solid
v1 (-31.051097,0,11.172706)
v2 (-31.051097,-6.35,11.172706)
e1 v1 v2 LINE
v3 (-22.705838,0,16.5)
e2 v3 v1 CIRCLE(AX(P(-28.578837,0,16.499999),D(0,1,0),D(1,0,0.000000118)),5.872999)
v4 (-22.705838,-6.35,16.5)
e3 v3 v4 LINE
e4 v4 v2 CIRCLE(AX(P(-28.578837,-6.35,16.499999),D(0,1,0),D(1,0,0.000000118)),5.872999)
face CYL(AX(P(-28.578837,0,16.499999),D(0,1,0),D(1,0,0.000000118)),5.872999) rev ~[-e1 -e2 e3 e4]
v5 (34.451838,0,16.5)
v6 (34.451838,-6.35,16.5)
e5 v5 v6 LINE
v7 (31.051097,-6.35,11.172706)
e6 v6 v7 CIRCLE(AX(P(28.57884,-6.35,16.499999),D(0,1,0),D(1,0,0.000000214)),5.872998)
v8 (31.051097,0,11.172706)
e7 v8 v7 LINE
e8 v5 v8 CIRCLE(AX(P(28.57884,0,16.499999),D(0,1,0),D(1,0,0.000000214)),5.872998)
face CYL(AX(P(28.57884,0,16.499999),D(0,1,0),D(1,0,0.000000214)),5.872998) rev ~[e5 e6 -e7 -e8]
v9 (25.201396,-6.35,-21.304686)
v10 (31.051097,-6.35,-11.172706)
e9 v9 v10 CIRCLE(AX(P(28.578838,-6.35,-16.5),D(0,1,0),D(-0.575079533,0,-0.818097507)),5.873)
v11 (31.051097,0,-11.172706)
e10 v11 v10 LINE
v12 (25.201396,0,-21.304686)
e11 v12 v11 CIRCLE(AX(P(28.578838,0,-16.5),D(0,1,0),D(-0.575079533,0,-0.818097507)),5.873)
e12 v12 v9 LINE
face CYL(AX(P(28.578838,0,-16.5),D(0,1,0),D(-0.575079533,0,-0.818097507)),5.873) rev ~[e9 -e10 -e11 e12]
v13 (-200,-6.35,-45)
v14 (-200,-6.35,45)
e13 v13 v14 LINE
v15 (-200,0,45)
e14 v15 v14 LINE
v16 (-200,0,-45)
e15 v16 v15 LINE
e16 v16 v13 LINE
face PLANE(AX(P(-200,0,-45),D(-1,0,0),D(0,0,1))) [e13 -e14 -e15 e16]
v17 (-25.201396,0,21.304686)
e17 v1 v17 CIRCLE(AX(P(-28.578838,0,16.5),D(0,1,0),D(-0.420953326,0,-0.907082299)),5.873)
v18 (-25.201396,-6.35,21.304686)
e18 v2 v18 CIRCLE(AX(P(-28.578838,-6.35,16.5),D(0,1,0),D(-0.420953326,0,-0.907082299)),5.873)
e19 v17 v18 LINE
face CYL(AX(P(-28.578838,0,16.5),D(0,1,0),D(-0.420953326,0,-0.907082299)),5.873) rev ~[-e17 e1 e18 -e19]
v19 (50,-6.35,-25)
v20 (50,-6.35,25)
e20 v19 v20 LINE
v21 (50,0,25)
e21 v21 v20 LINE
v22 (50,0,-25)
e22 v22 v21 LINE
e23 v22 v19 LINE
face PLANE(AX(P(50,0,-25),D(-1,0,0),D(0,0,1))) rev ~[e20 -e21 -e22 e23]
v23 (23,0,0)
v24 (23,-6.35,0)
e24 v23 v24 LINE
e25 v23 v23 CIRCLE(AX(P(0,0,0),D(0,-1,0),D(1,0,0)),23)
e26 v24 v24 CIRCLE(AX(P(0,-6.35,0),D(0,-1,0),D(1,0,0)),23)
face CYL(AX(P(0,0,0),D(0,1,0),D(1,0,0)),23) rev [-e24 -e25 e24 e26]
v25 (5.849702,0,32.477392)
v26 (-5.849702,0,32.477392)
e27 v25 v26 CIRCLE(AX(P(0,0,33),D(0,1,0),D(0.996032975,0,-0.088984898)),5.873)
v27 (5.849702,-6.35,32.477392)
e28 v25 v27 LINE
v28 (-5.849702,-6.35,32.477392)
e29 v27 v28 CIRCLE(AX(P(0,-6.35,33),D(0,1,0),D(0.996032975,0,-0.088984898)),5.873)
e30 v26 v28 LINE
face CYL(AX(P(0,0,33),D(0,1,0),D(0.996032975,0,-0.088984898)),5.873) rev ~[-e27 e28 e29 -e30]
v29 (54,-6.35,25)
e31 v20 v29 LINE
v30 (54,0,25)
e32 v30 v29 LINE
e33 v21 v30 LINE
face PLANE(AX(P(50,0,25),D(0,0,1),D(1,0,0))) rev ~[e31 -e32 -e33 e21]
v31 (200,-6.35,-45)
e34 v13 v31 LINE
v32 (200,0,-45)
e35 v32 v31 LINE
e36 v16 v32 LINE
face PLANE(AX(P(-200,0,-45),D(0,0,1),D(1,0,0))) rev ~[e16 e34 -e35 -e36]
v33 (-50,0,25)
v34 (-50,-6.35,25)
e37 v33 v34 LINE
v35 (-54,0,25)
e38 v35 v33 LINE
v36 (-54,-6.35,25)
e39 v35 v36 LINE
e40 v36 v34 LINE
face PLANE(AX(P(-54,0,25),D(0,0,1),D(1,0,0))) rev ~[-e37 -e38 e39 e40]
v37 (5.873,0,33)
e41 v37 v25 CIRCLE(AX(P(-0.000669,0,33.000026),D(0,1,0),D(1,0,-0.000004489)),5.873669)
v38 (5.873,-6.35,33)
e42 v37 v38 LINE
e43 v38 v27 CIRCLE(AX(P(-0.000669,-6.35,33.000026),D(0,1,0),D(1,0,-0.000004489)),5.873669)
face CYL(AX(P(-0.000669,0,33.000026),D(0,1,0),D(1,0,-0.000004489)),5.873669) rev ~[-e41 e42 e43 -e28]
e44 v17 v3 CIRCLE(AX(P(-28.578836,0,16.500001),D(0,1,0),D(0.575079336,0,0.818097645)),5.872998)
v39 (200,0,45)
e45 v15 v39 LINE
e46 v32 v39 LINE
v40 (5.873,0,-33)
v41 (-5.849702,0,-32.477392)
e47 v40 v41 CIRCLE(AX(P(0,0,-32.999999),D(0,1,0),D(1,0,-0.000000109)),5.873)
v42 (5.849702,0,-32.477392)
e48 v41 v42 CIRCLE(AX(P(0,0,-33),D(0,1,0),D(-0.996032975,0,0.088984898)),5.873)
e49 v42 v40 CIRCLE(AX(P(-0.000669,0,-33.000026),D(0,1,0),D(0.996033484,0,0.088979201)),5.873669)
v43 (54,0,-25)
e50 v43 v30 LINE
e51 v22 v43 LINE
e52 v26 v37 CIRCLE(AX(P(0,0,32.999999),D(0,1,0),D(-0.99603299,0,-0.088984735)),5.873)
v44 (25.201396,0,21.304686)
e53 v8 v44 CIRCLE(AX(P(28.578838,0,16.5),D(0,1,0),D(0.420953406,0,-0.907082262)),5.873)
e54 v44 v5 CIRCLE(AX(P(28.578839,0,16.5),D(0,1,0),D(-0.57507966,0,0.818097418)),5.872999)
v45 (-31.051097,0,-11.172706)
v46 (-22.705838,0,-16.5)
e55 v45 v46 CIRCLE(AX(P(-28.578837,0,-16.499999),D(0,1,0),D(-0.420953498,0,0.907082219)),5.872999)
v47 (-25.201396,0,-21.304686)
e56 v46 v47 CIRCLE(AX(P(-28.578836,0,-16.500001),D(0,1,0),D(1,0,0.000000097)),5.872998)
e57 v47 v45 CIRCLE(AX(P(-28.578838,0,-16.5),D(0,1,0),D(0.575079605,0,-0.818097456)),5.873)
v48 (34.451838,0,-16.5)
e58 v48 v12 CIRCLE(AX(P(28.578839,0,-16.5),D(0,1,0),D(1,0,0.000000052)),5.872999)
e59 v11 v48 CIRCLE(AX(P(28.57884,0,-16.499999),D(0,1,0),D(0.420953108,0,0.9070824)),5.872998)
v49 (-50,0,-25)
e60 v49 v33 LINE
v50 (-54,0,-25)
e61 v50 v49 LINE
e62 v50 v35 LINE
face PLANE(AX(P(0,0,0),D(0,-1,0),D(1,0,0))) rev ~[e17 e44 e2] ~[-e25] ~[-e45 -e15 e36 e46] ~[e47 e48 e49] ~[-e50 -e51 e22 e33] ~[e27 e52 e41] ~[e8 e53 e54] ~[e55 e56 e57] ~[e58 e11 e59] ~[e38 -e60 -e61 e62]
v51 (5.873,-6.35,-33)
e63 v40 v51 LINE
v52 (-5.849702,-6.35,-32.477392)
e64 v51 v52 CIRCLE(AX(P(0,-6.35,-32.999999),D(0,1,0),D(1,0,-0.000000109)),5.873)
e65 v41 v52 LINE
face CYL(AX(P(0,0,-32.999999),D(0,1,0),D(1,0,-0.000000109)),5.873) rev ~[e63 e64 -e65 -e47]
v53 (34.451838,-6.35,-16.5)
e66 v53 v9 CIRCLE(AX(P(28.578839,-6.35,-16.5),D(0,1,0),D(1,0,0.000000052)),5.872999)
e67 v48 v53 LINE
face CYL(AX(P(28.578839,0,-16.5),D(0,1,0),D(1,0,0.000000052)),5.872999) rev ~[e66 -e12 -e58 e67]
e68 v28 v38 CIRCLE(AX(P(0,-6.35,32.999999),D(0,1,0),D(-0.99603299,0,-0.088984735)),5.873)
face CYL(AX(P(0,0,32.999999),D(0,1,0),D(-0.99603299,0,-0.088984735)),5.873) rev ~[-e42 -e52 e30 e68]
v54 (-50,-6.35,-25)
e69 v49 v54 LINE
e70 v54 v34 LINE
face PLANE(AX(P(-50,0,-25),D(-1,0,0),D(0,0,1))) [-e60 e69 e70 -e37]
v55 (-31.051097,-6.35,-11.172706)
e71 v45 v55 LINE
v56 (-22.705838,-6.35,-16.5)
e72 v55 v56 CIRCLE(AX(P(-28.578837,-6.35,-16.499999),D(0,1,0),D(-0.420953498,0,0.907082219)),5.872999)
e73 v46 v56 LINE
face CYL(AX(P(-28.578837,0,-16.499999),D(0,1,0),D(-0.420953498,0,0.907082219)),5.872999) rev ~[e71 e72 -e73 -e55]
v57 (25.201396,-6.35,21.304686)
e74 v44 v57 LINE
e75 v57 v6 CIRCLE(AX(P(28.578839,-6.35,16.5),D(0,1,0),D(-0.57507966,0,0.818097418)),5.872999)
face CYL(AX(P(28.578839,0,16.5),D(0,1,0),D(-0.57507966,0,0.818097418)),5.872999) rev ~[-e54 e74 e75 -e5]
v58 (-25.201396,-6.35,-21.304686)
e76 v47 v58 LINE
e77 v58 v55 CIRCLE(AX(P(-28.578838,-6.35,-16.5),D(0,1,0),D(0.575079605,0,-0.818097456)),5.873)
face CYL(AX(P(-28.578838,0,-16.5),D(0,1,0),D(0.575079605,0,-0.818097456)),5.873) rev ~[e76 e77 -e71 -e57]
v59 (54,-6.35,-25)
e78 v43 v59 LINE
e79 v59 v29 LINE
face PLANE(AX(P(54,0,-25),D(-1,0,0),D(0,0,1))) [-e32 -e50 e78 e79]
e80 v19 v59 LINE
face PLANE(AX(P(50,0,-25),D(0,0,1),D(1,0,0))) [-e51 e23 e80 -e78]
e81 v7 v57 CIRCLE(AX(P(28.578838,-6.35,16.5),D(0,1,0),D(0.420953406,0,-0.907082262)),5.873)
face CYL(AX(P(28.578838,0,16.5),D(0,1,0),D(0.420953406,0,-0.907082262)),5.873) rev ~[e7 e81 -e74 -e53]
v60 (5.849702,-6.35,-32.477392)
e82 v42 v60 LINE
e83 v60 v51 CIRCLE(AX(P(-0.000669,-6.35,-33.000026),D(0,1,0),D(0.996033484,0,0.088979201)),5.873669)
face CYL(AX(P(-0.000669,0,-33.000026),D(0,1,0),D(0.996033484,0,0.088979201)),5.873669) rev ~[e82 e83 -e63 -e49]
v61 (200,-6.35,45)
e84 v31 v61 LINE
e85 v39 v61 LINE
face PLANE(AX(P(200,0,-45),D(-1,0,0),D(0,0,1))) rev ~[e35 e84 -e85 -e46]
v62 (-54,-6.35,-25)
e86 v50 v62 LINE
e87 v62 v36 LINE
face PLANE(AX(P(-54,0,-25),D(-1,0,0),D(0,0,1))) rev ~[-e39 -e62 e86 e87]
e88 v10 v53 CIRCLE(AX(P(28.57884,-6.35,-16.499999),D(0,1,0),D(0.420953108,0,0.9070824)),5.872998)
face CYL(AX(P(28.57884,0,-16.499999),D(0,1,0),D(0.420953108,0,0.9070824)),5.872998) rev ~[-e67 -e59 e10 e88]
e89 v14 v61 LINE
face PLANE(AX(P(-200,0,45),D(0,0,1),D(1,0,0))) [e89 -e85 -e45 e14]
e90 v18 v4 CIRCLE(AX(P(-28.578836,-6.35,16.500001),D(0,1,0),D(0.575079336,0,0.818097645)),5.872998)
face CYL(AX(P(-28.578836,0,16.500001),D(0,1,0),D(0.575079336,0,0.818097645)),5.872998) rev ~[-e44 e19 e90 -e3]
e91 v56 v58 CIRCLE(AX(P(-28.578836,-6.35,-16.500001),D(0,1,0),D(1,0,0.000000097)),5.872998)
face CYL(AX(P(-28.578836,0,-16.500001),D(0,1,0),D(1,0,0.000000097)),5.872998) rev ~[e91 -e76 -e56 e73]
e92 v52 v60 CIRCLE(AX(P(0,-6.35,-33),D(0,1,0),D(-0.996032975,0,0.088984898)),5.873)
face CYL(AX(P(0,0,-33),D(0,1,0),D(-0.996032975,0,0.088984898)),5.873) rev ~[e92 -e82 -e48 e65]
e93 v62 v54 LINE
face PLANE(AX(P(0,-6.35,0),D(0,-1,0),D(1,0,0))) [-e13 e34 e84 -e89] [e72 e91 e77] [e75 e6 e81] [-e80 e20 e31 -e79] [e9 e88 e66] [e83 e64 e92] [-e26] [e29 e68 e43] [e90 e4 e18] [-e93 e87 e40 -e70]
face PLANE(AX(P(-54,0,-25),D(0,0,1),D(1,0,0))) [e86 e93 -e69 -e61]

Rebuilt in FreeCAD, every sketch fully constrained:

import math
import FreeCAD as App
import Part
import Sketcher
from FreeCAD import Vector

doc = App.newDocument("Part")
body = doc.addObject("PartDesign::Body", "Body")

# Sketch on XZ plane
sketch1 = body.newObject("Sketcher::SketchObject", "Sketch")
sketch1.AttachmentSupport = (doc.getObject("XZ_Plane"), [""])
sketch1.MapMode = "FlatFace"
sketch1.addGeometry([
    Part.LineSegment(Vector(-200, 45, 0), Vector(-200, -45, 0)),  # 0
    Part.LineSegment(Vector(-200, -45, 0), Vector(200, -45, 0)),  # 1
    Part.LineSegment(Vector(200, -45, 0), Vector(200, 45, 0)),  # 2
    Part.LineSegment(Vector(200, 45, 0), Vector(-200, 45, 0)),  # 3
    Part.ArcOfCircle(Part.Circle(Vector(0, -33, 0), Vector(0, 0, 1), 5.9), math.radians(0), math.radians(5.1)),  # 4
    Part.ArcOfCircle(Part.Circle(Vector(0, -33, 0), Vector(0, 0, 1), 5.9), math.radians(175), math.radians(360)),  # 5
    Part.ArcOfCircle(Part.Circle(Vector(0, -33, 0), Vector(0, 0, 1), 5.9), math.radians(5), math.radians(175)),  # 6
    Part.ArcOfCircle(Part.Circle(Vector(-28.6, -16.5, 0), Vector(0, 0, 1), 5.9), math.radians(115), math.radians(305)),  # 7
    Part.ArcOfCircle(Part.Circle(Vector(-28.6, -16.5, 0), Vector(0, 0, 1), 5.9), math.radians(0), math.radians(115)),  # 8
    Part.ArcOfCircle(Part.Circle(Vector(-28.6, -16.5, 0), Vector(0, 0, 1), 5.9), math.radians(-55), math.radians(0)),  # 9
    Part.ArcOfCircle(Part.Circle(Vector(28.6, -16.5, 0), Vector(0, 0, 1), 5.9), math.radians(0), math.radians(65)),  # 10
    Part.ArcOfCircle(Part.Circle(Vector(28.6, -16.5, 0), Vector(0, 0, 1), 5.9), math.radians(-125), math.radians(0)),  # 11
    Part.ArcOfCircle(Part.Circle(Vector(28.6, -16.5, 0), Vector(0, 0, 1), 5.9), math.radians(65), math.radians(235)),  # 12
    Part.LineSegment(Vector(-50, -25, 0), Vector(-54, -25, 0)),  # 13
    Part.LineSegment(Vector(-54, -25, 0), Vector(-54, 25, 0)),  # 14
    Part.LineSegment(Vector(-54, 25, 0), Vector(-50, 25, 0)),  # 15
    Part.LineSegment(Vector(-50, 25, 0), Vector(-50, -25, 0)),  # 16
    Part.ArcOfCircle(Part.Circle(Vector(-28.6, 16.5, 0), Vector(0, 0, 1), 5.9), math.radians(55), math.radians(245)),  # 17
    Part.ArcOfCircle(Part.Circle(Vector(-28.6, 16.5, 0), Vector(0, 0, 1), 5.9), math.radians(0), math.radians(55)),  # 18
    Part.ArcOfCircle(Part.Circle(Vector(-28.6, 16.5, 0), Vector(0, 0, 1), 5.9), math.radians(-115), math.radians(0)),  # 19
    Part.ArcOfCircle(Part.Circle(Vector(0, 33, 0), Vector(0, 0, 1), 5.9), math.radians(-5.1), math.radians(0)),  # 20
    Part.ArcOfCircle(Part.Circle(Vector(0, 33, 0), Vector(0, 0, 1), 5.9), math.radians(-175), math.radians(-5)),  # 21
    Part.ArcOfCircle(Part.Circle(Vector(0, 33, 0), Vector(0, 0, 1), 5.9), math.radians(0), math.radians(185)),  # 22
    Part.Circle(Vector(0, 0, 0), Vector(0, 0, 1), 23),  # 23
    Part.LineSegment(Vector(54, -25, 0), Vector(50, -25, 0)),  # 24
    Part.LineSegment(Vector(50, -25, 0), Vector(50, 25, 0)),  # 25
    Part.LineSegment(Vector(50, 25, 0), Vector(54, 25, 0)),  # 26
    Part.LineSegment(Vector(54, 25, 0), Vector(54, -25, 0)),  # 27
    Part.ArcOfCircle(Part.Circle(Vector(28.6, 16.5, 0), Vector(0, 0, 1), 5.9), math.radians(-65), math.radians(0)),  # 28
    Part.ArcOfCircle(Part.Circle(Vector(28.6, 16.5, 0), Vector(0, 0, 1), 5.9), math.radians(125), math.radians(295)),  # 29
    Part.ArcOfCircle(Part.Circle(Vector(28.6, 16.5, 0), Vector(0, 0, 1), 5.9), math.radians(0), math.radians(125)),  # 30
], False)
sketch1.addConstraint([
    Sketcher.Constraint("Coincident", 0, 2, 1, 1),
    Sketcher.Constraint("Coincident", 1, 2, 2, 1),
    Sketcher.Constraint("Coincident", 2, 2, 3, 1),
    Sketcher.Constraint("Coincident", 3, 2, 0, 1),
    Sketcher.Constraint("Coincident", 4, 1, 5, 2),
    Sketcher.Constraint("Tangent", 5, 1, 6, 2),
    Sketcher.Constraint("Coincident", 6, 1, 4, 2),
    Sketcher.Constraint("Tangent", 7, 1, 8, 2),
    Sketcher.Constraint("Tangent", 8, 1, 9, 2),
    Sketcher.Constraint("Tangent", 9, 1, 7, 2),
    Sketcher.Constraint("Tangent", 10, 1, 11, 2),
    Sketcher.Constraint("Tangent", 11, 1, 12, 2),
    Sketcher.Constraint("Tangent", 12, 1, 10, 2),
    Sketcher.Constraint("Coincident", 13, 2, 14, 1),
    Sketcher.Constraint("Coincident", 14, 2, 15, 1),
    Sketcher.Constraint("Coincident", 15, 2, 16, 1),
    Sketcher.Constraint("Coincident", 16, 2, 13, 1),
    Sketcher.Constraint("Tangent", 17, 1, 18, 2),
    Sketcher.Constraint("Tangent", 18, 1, 19, 2),
    Sketcher.Constraint("Tangent", 19, 1, 17, 2),
    Sketcher.Constraint("Coincident", 20, 1, 21, 2),
    Sketcher.Constraint("Tangent", 21, 1, 22, 2),
    Sketcher.Constraint("Coincident", 22, 1, 20, 2),
    Sketcher.Constraint("Coincident", 24, 2, 25, 1),
    Sketcher.Constraint("Coincident", 25, 2, 26, 1),
    Sketcher.Constraint("Coincident", 26, 2, 27, 1),
    Sketcher.Constraint("Coincident", 27, 2, 24, 1),
    Sketcher.Constraint("Tangent", 28, 1, 29, 2),
    Sketcher.Constraint("Tangent", 29, 1, 30, 2),
    Sketcher.Constraint("Tangent", 30, 1, 28, 2),
    Sketcher.Constraint("Vertical", 0),
    Sketcher.Constraint("Horizontal", 1),
    Sketcher.Constraint("Vertical", 2),
    Sketcher.Constraint("Horizontal", 3),
    Sketcher.Constraint("Horizontal", 13),
    Sketcher.Constraint("Vertical", 14),
    Sketcher.Constraint("Horizontal", 15),
    Sketcher.Constraint("Vertical", 16),
    Sketcher.Constraint("Horizontal", 24),
    Sketcher.Constraint("Vertical", 25),
    Sketcher.Constraint("Horizontal", 26),
    Sketcher.Constraint("Vertical", 27),
    Sketcher.Constraint("Coincident", 23, 3, -1, 1),
    Sketcher.Constraint("Equal", 5, 6),
    Sketcher.Constraint("Equal", 6, 7),
    Sketcher.Constraint("Equal", 9, 10),
    Sketcher.Constraint("Equal", 12, 17),
    Sketcher.Constraint("Equal", 4, 20),
    Sketcher.Constraint("Equal", 19, 21),
    Sketcher.Constraint("Equal", 21, 22),
    Sketcher.Constraint("Equal", 19, 28),
    Sketcher.Constraint("Symmetric", 10, 3, 17, 3, -1, 1),
    Sketcher.Constraint("Symmetric", 5, 3, 21, 3, -1, 1),
    Sketcher.Constraint("Symmetric", 7, 3, 28, 3, -1, 1),
    Sketcher.Constraint("Symmetric", 0, 2, 2, 2, -1, 1),
    Sketcher.Constraint("Symmetric", 15, 2, 24, 2, -1, 1),
    Sketcher.Constraint("Symmetric", 13, 2, 26, 2, -1, 1),
    Sketcher.Constraint("Symmetric", 7, 3, 10, 3, -2),
    Sketcher.Constraint("Symmetric", 5, 1, 6, 1, -2),
    Sketcher.Constraint("Horizontal", 6, 3, 4, 1),
    Sketcher.Constraint("Horizontal", 12, 3, 8, 1),
    Sketcher.Constraint("Horizontal", 8, 1, 10, 1),
    Sketcher.Constraint("Horizontal", 9, 1, 11, 1),
    Sketcher.Constraint("Horizontal", 7, 1, 12, 1),
    Sketcher.Constraint("Horizontal", 30, 3, 18, 1),
    Sketcher.Constraint("Horizontal", 20, 1, 21, 1),
    Sketcher.Constraint("Horizontal", 21, 3, 22, 1),
    Sketcher.Constraint("Horizontal", 16, 2, 24, 2),
    Sketcher.Constraint("Horizontal", 19, 1, 28, 1),
    Sketcher.Constraint("Horizontal", 17, 1, 29, 1),
    Sketcher.Constraint("Horizontal", 18, 1, 30, 1),
    Sketcher.Constraint("Vertical", 9, 1, 17, 1),
    Sketcher.Constraint("Vertical", 7, 1, 19, 1),
    Sketcher.Constraint("Vertical", 6, 1, 20, 1),
    Sketcher.Constraint("Diameter", 23, 46.0),
    Sketcher.Constraint("DistanceX", 1, 1, 1, 2, 400.0),
    Sketcher.Constraint("DistanceX", 13, 2, 13, 1, 4.0),
    Sketcher.Constraint("DistanceY", 0, 2, 0, 1, 90.0),
    Sketcher.Constraint("DistanceY", 14, 1, 14, 2, 50.0),
    Sketcher.Constraint("DistanceY", 5, 3, -1, 1, 32.999999),
    Sketcher.Constraint("DistanceX", 13, 2, -1, 1, 54.0),
    Sketcher.Constraint("Radius", 5, 5.873),
    Sketcher.Constraint("DistanceY", 8, 3, 17, 3, 32.999999),
    Sketcher.Constraint("Radius", 4, 5.873669),
    Sketcher.Constraint("DistanceX", 5, 1, -1, 1, 5.849702),
    Sketcher.Constraint("DistanceX", 7, 1, 9, 1, 5.849701),
    Sketcher.Constraint("DistanceX", 7, 3, -1, 1, 28.578838),
    Sketcher.Constraint("DistanceX", 7, 1, 8, 3, 2.47226),
])
pad1 = body.newObject("PartDesign::Pad", "Pad")
pad1.Profile = sketch1
pad1.Length = 6.35

doc.recompute()
